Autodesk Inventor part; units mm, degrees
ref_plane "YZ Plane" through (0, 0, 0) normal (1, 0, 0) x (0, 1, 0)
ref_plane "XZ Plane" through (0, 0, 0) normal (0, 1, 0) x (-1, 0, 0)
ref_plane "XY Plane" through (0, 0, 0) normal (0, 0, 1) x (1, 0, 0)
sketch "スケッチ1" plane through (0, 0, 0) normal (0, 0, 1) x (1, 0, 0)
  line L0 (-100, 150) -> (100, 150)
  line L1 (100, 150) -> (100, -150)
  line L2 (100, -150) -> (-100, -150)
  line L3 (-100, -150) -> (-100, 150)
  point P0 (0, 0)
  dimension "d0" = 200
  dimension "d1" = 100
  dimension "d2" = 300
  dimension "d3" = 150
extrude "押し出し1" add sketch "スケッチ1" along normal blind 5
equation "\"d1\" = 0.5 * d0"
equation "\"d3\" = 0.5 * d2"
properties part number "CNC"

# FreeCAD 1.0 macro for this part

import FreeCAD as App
import Part
import Sketcher
Q = App.Units.Quantity


def add_polygon(sketch, points):
    """Adds a closed chain of lines whose ends are joined by coincident constraints."""
    first, n = sketch.GeometryCount, len(points)
    for a, b in zip(points, points[1:] + points[:1]):
        sketch.addGeometry(Part.LineSegment(App.Vector(*a, 0), App.Vector(*b, 0)), False)
    for i in range(n):
        sketch.addConstraint(Sketcher.Constraint("Coincident", first + i, 2, first + (i + 1) % n, 1))

doc = App.newDocument("Part")
body = doc.addObject("PartDesign::Body", "Body")

sketch1 = body.newObject("Sketcher::SketchObject", "Sketch")
sketch1.AttachmentSupport = (doc.getObject("XY_Plane"), [""])
sketch1.MapMode = "FlatFace"
add_polygon(sketch1, [(100, 150), (-100, 150), (-100, -150), (100, -150)])
sketch1.addConstraint(Sketcher.Constraint("Horizontal", 0))
sketch1.addConstraint(Sketcher.Constraint("Vertical", 1))
sketch1.addConstraint(Sketcher.Constraint("Horizontal", 2))
sketch1.addConstraint(Sketcher.Constraint("Vertical", 3))
sketch1.addConstraint(Sketcher.Constraint("Symmetric", 0, 2, 2, 2, -1, 1))
sketch1.addConstraint(Sketcher.Constraint("DistanceX", 0, 2, 0, 1, Q("200 mm")))
sketch1.addConstraint(Sketcher.Constraint("DistanceY", 1, 2, 1, 1, Q("300 mm")))
pad1 = body.newObject("PartDesign::Pad", "Pad")
pad1.Profile = sketch1
pad1.Length = 5

doc.recompute()
